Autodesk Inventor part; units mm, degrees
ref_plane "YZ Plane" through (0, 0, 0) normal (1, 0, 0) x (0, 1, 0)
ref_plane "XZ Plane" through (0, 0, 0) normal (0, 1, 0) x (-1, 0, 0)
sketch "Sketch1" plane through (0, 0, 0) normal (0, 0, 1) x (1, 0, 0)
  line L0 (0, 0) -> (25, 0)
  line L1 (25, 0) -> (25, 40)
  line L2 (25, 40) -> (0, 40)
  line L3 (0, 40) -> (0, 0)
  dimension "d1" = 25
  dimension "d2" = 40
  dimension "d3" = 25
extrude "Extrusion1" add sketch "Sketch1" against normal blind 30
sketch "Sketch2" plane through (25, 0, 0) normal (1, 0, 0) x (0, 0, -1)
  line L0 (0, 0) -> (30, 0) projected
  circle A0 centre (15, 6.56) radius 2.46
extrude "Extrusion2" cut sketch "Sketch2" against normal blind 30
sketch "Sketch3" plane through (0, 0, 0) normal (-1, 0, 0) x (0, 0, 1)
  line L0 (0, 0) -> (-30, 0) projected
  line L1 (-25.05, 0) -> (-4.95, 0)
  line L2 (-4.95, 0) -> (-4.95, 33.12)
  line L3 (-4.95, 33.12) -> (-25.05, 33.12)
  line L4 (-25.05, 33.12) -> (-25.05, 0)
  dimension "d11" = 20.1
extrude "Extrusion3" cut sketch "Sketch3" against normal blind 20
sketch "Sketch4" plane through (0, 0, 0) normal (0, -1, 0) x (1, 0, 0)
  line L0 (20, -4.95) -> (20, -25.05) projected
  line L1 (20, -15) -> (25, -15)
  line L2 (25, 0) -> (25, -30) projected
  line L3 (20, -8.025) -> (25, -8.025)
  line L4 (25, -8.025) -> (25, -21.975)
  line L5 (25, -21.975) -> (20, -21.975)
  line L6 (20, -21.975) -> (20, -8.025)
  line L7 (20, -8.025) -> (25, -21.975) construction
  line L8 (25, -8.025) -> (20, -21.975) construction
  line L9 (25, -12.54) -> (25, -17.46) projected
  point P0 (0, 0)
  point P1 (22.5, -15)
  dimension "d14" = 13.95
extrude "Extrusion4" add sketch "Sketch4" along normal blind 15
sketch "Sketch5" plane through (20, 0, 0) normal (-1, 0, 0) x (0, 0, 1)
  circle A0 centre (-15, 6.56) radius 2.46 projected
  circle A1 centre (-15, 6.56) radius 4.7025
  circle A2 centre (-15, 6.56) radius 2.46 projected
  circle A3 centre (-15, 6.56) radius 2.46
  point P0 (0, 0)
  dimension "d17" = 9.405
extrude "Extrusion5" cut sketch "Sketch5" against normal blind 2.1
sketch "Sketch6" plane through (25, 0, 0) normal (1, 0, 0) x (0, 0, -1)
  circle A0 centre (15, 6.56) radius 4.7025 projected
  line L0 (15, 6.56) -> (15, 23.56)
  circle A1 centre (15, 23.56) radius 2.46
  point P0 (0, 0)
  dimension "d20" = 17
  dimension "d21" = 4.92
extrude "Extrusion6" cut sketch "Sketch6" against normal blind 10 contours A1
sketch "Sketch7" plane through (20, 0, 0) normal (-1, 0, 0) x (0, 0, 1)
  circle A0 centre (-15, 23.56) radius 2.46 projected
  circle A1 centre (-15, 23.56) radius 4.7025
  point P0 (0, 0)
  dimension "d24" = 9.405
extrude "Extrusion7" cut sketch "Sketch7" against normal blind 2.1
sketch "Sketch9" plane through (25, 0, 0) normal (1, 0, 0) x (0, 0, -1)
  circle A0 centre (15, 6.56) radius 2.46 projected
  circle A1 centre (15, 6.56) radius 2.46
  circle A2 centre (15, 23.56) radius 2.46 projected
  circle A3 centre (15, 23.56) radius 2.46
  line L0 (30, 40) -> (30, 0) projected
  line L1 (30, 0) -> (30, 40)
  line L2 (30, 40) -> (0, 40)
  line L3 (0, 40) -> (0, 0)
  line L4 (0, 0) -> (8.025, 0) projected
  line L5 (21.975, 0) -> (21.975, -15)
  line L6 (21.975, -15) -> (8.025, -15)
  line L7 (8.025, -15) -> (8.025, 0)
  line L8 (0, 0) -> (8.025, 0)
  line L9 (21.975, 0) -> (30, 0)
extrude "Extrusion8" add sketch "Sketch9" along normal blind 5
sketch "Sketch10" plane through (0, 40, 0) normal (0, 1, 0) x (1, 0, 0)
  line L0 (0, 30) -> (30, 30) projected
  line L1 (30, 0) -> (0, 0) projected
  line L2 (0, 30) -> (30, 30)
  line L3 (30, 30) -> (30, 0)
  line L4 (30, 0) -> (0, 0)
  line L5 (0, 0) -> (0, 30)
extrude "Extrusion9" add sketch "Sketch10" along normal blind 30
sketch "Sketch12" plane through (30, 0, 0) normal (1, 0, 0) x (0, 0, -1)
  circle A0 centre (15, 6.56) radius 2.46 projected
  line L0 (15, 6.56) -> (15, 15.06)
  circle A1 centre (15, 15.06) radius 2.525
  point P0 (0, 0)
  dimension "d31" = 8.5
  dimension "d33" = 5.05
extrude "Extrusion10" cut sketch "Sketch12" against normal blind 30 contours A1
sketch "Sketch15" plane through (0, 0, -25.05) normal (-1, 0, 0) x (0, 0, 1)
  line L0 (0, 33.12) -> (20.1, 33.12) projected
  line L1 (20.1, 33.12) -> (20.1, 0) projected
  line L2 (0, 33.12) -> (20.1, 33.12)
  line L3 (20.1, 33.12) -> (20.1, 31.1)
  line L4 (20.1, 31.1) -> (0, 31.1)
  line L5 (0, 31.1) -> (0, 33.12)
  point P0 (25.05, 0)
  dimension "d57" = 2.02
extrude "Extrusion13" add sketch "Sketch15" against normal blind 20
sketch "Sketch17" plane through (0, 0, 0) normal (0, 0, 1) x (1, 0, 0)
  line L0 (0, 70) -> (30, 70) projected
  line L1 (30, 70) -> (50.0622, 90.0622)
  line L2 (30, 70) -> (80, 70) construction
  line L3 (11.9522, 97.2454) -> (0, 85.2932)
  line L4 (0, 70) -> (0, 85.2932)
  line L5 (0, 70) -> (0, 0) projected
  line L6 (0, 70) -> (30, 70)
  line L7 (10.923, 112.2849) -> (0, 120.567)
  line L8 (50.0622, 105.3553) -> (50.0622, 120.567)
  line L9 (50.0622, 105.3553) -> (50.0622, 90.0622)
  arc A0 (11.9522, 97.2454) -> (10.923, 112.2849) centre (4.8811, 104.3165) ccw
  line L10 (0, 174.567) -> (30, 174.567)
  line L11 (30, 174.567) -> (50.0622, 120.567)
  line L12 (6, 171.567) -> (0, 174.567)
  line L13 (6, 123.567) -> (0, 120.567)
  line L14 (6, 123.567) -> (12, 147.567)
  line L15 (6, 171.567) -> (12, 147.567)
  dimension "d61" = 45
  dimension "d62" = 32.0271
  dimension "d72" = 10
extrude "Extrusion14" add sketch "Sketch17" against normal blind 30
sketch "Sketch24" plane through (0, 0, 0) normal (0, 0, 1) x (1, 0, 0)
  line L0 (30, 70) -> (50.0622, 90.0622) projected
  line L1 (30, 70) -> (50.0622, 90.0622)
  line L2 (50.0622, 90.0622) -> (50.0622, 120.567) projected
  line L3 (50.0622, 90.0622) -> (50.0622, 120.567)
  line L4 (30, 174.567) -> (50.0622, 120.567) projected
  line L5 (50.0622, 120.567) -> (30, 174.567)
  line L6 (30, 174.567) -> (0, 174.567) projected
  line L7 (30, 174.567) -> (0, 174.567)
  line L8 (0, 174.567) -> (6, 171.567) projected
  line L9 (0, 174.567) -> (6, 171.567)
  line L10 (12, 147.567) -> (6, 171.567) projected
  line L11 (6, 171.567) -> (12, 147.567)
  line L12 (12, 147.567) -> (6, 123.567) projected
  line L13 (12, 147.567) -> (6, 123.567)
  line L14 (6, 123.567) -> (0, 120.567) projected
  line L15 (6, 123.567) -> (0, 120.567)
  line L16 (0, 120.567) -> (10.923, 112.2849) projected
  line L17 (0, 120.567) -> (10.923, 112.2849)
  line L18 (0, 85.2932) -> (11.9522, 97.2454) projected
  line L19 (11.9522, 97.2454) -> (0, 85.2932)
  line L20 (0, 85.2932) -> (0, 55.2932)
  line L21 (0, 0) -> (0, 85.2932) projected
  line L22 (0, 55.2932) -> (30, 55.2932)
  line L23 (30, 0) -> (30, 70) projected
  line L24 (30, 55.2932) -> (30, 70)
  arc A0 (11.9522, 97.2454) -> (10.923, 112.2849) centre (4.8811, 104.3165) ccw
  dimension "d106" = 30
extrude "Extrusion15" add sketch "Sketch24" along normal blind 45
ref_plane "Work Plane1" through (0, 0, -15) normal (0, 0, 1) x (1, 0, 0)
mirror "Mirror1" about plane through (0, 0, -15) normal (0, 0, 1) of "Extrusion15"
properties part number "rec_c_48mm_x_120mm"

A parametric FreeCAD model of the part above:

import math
import FreeCAD as App
import Part
import Sketcher
from FreeCAD import Vector
Q = App.Units.Quantity

doc = App.newDocument("Part")
body = doc.addObject("PartDesign::Body", "Body")

# Sketch on XY plane
sketch1 = body.newObject("Sketcher::SketchObject", "Sketch")
sketch1.AttachmentSupport = (doc.getObject("XY_Plane"), [""])
sketch1.MapMode = "FlatFace"
sketch1.addGeometry(Part.LineSegment(Vector(0, 40, 0), Vector(0, 0, 0)), False)
sketch1.addGeometry(Part.LineSegment(Vector(0, 0, 0), Vector(25, 0, 0)), False)
sketch1.addGeometry(Part.LineSegment(Vector(25, 0, 0), Vector(25, 40, 0)), False)
sketch1.addGeometry(Part.LineSegment(Vector(25, 40, 0), Vector(0, 40, 0)), False)
sketch1.addConstraint(Sketcher.Constraint("Coincident", 0, 2, 1, 1))
sketch1.addConstraint(Sketcher.Constraint("Coincident", 1, 2, 2, 1))
sketch1.addConstraint(Sketcher.Constraint("Coincident", 2, 2, 3, 1))
sketch1.addConstraint(Sketcher.Constraint("Coincident", 3, 2, 0, 1))
sketch1.addConstraint(Sketcher.Constraint("Vertical", 0))
sketch1.addConstraint(Sketcher.Constraint("Horizontal", 1))
sketch1.addConstraint(Sketcher.Constraint("Vertical", 2))
sketch1.addConstraint(Sketcher.Constraint("Horizontal", 3))
sketch1.addConstraint(Sketcher.Constraint("Coincident", 0, 2, -1, 1))
sketch1.addConstraint(Sketcher.Constraint("DistanceX", 1, 1, 1, 2, Q("25 mm")))
sketch1.addConstraint(Sketcher.Constraint("DistanceY", 0, 2, 0, 1, Q("40 mm")))
pad1 = body.newObject("PartDesign::Pad", "Pad")
pad1.Profile = sketch1
pad1.Length = 30
pad1.Reversed = True

# Sketch on YZ plane
sketch2 = body.newObject("Sketcher::SketchObject", "Sketch001")
sketch2.AttachmentSupport = (doc.getObject("YZ_Plane"), [""])
sketch2.MapMode = "FlatFace"
sketch2.AttachmentOffset = App.Placement(Vector(0, 0, 25), App.Rotation())
sketch2.addGeometry(Part.Circle(Vector(6.6, -15, 0), Vector(0, 0, 1), 2.5), False)
sketch2.addConstraint(Sketcher.Constraint("Diameter", 0, Q("4.92 mm")))
sketch2.addConstraint(Sketcher.Constraint("DistanceY", 0, 3, -1, 1, Q("15 mm")))
sketch2.addConstraint(Sketcher.Constraint("DistanceX", -1, 1, 0, 3, Q("6.56 mm")))
pocket1 = body.newObject("PartDesign::Pocket", "Pocket")
pocket1.Profile = sketch2
pocket1.Length = 30

# Sketch on YZ plane
sketch3 = body.newObject("Sketcher::SketchObject", "Sketch002")
sketch3.AttachmentSupport = (doc.getObject("YZ_Plane"), [""])
sketch3.MapMode = "FlatFace"
sketch3.addGeometry(Part.LineSegment(Vector(0, -25, 0), Vector(0, -5, 0)), False)
sketch3.addGeometry(Part.LineSegment(Vector(0, -5, 0), Vector(33, -5, 0)), False)
sketch3.addGeometry(Part.LineSegment(Vector(33, -5, 0), Vector(33, -25, 0)), False)
sketch3.addGeometry(Part.LineSegment(Vector(33, -25, 0), Vector(0, -25, 0)), False)
sketch3.addConstraint(Sketcher.Constraint("Coincident", 0, 2, 1, 1))
sketch3.addConstraint(Sketcher.Constraint("Coincident", 1, 2, 2, 1))
sketch3.addConstraint(Sketcher.Constraint("Coincident", 2, 2, 3, 1))
sketch3.addConstraint(Sketcher.Constraint("Coincident", 3, 2, 0, 1))
sketch3.addConstraint(Sketcher.Constraint("Vertical", 0))
sketch3.addConstraint(Sketcher.Constraint("Horizontal", 1))
sketch3.addConstraint(Sketcher.Constraint("Vertical", 2))
sketch3.addConstraint(Sketcher.Constraint("Horizontal", 3))
sketch3.addConstraint(Sketcher.Constraint("PointOnObject", 0, 2, -2))
sketch3.addConstraint(Sketcher.Constraint("DistanceY", 0, 1, 0, 2, Q("20.1 mm")))
sketch3.addConstraint(Sketcher.Constraint("DistanceX", 1, 1, 1, 2, Q("33.12 mm")))
sketch3.addConstraint(Sketcher.Constraint("DistanceY", 0, 2, -1, 1, Q("4.95 mm")))
pocket2 = body.newObject("PartDesign::Pocket", "Pocket001")
pocket2.Profile = sketch3
pocket2.Length = 20
pocket2.Reversed = True

# Sketch on XZ plane
sketch4 = body.newObject("Sketcher::SketchObject", "Sketch003")
sketch4.AttachmentSupport = (doc.getObject("XZ_Plane"), [""])
sketch4.MapMode = "FlatFace"
sketch4.addGeometry(Part.LineSegment(Vector(25, -8, 0), Vector(20, -8, 0)), False)
sketch4.addGeometry(Part.LineSegment(Vector(20, -8, 0), Vector(20, -22, 0)), False)
sketch4.addGeometry(Part.LineSegment(Vector(20, -22, 0), Vector(25, -22, 0)), False)
sketch4.addGeometry(Part.LineSegment(Vector(25, -22, 0), Vector(25, -8, 0)), False)
sketch4.addConstraint(Sketcher.Constraint("Coincident", 0, 2, 1, 1))
sketch4.addConstraint(Sketcher.Constraint("Coincident", 1, 2, 2, 1))
sketch4.addConstraint(Sketcher.Constraint("Coincident", 2, 2, 3, 1))
sketch4.addConstraint(Sketcher.Constraint("Coincident", 3, 2, 0, 1))
sketch4.addConstraint(Sketcher.Constraint("Horizontal", 0))
sketch4.addConstraint(Sketcher.Constraint("Vertical", 1))
sketch4.addConstraint(Sketcher.Constraint("Horizontal", 2))
sketch4.addConstraint(Sketcher.Constraint("Vertical", 3))
sketch4.addConstraint(Sketcher.Constraint("DistanceY", 1, 2, 1, 1, Q("13.95 mm")))
sketch4.addConstraint(Sketcher.Constraint("DistanceX", 0, 2, 0, 1, Q("5 mm")))
sketch4.addConstraint(Sketcher.Constraint("DistanceX", -1, 1, 0, 2, Q("20 mm")))
sketch4.addConstraint(Sketcher.Constraint("DistanceY", 0, 2, -1, 1, Q("8.025 mm")))
pad2 = body.newObject("PartDesign::Pad", "Pad001")
pad2.Profile = sketch4
pad2.Length = 15

# Sketch on YZ plane
sketch5 = body.newObject("Sketcher::SketchObject", "Sketch004")
sketch5.AttachmentSupport = (doc.getObject("YZ_Plane"), [""])
sketch5.MapMode = "FlatFace"
sketch5.AttachmentOffset = App.Placement(Vector(0, 0, 20), App.Rotation())
sketch5.addGeometry(Part.Circle(Vector(6.6, -15, 0), Vector(0, 0, 1), 4.7), False)
sketch5.addGeometry(Part.Circle(Vector(6.6, -15, 0), Vector(0, 0, 1), 2.5), False)
sketch5.addConstraint(Sketcher.Constraint("Coincident", 1, 3, 0, 3))
sketch5.addConstraint(Sketcher.Constraint("Diameter", 0, Q("9.405 mm")))
sketch5.addConstraint(Sketcher.Constraint("Diameter", 1, Q("4.92 mm")))
sketch5.addConstraint(Sketcher.Constraint("DistanceY", 0, 3, -1, 1, Q("15 mm")))
sketch5.addConstraint(Sketcher.Constraint("DistanceX", -1, 1, 0, 3, Q("6.56 mm")))
pocket3 = body.newObject("PartDesign::Pocket", "Pocket002")
pocket3.Profile = sketch5
pocket3.Length = 2.1
pocket3.Reversed = True

# Sketch on YZ plane
sketch6 = body.newObject("Sketcher::SketchObject", "Sketch005")
sketch6.AttachmentSupport = (doc.getObject("YZ_Plane"), [""])
sketch6.MapMode = "FlatFace"
sketch6.AttachmentOffset = App.Placement(Vector(0, 0, 25), App.Rotation())
sketch6.addGeometry(Part.Circle(Vector(23.6, -15, 0), Vector(0, 0, 1), 2.5), False)
sketch6.addConstraint(Sketcher.Constraint("Diameter", 0, Q("4.92 mm")))
sketch6.addConstraint(Sketcher.Constraint("DistanceY", 0, 3, -1, 1, Q("15 mm")))
sketch6.addConstraint(Sketcher.Constraint("DistanceX", -1, 1, 0, 3, Q("23.56 mm")))
pocket4 = body.newObject("PartDesign::Pocket", "Pocket003")
pocket4.Profile = sketch6
pocket4.Length = 10

# Sketch on YZ plane
sketch7 = body.newObject("Sketcher::SketchObject", "Sketch006")
sketch7.AttachmentSupport = (doc.getObject("YZ_Plane"), [""])
sketch7.MapMode = "FlatFace"
sketch7.AttachmentOffset = App.Placement(Vector(0, 0, 20), App.Rotation())
sketch7.addGeometry(Part.Circle(Vector(23.6, -15, 0), Vector(0, 0, 1), 4.7), False)
sketch7.addGeometry(Part.Circle(Vector(23.6, -15, 0), Vector(0, 0, 1), 2.5), False)
sketch7.addConstraint(Sketcher.Constraint("Coincident", 1, 3, 0, 3))
sketch7.addConstraint(Sketcher.Constraint("Diameter", 0, Q("9.405 mm")))
sketch7.addConstraint(Sketcher.Constraint("Diameter", 1, Q("4.92 mm")))
sketch7.addConstraint(Sketcher.Constraint("DistanceY", 0, 3, -1, 1, Q("15 mm")))
sketch7.addConstraint(Sketcher.Constraint("DistanceX", -1, 1, 0, 3, Q("23.56 mm")))
pocket5 = body.newObject("PartDesign::Pocket", "Pocket004")
pocket5.Profile = sketch7
pocket5.Length = 2.1
pocket5.Reversed = True

# Sketch on YZ plane
sketch8 = body.newObject("Sketcher::SketchObject", "Sketch007")
sketch8.AttachmentSupport = (doc.getObject("YZ_Plane"), [""])
sketch8.MapMode = "FlatFace"
sketch8.AttachmentOffset = App.Placement(Vector(0, 0, 25), App.Rotation())
sketch8.addGeometry(Part.LineSegment(Vector(0, -30, 0), Vector(40, -30, 0)), False)
sketch8.addGeometry(Part.LineSegment(Vector(40, -30, 0), Vector(40, 0, 0)), False)
sketch8.addGeometry(Part.LineSegment(Vector(40, 0, 0), Vector(0, 0, 0)), False)
sketch8.addGeometry(Part.LineSegment(Vector(0, 0, 0), Vector(0, -8, 0)), False)
sketch8.addGeometry(Part.LineSegment(Vector(0, -8, 0), Vector(-15, -8, 0)), False)
sketch8.addGeometry(Part.LineSegment(Vector(-15, -8, 0), Vector(-15, -22, 0)), False)
sketch8.addGeometry(Part.LineSegment(Vector(-15, -22, 0), Vector(0, -22, 0)), False)
sketch8.addGeometry(Part.LineSegment(Vector(0, -22, 0), Vector(0, -30, 0)), False)
sketch8.addGeometry(Part.Circle(Vector(6.6, -15, 0), Vector(0, 0, 1), 2.5), False)
sketch8.addGeometry(Part.Circle(Vector(23.6, -15, 0), Vector(0, 0, 1), 2.5), False)
sketch8.addConstraint(Sketcher.Constraint("Coincident", 0, 2, 1, 1))
sketch8.addConstraint(Sketcher.Constraint("Coincident", 1, 2, 2, 1))
sketch8.addConstraint(Sketcher.Constraint("Coincident", 2, 2, 3, 1))
sketch8.addConstraint(Sketcher.Constraint("Coincident", 3, 2, 4, 1))
sketch8.addConstraint(Sketcher.Constraint("Coincident", 4, 2, 5, 1))
sketch8.addConstraint(Sketcher.Constraint("Coincident", 5, 2, 6, 1))
sketch8.addConstraint(Sketcher.Constraint("Coincident", 6, 2, 7, 1))
sketch8.addConstraint(Sketcher.Constraint("Coincident", 7, 2, 0, 1))
sketch8.addConstraint(Sketcher.Constraint("Horizontal", 0))
sketch8.addConstraint(Sketcher.Constraint("Vertical", 1))
sketch8.addConstraint(Sketcher.Constraint("Horizontal", 2))
sketch8.addConstraint(Sketcher.Constraint("Vertical", 3))
sketch8.addConstraint(Sketcher.Constraint("Horizontal", 4))
sketch8.addConstraint(Sketcher.Constraint("Vertical", 5))
sketch8.addConstraint(Sketcher.Constraint("Horizontal", 6))
sketch8.addConstraint(Sketcher.Constraint("Vertical", 7))
sketch8.addConstraint(Sketcher.Constraint("Coincident", 2, 2, -1, 1))
sketch8.addConstraint(Sketcher.Constraint("Equal", 8, 9))
sketch8.addConstraint(Sketcher.Constraint("PointOnObject", 6, 2, -2))
sketch8.addConstraint(Sketcher.Constraint("Horizontal", 8, 3, 9, 3))
sketch8.addConstraint(Sketcher.Constraint("Equal", 3, 7))
sketch8.addConstraint(Sketcher.Constraint("Diameter", 8, Q("4.92 mm")))
sketch8.addConstraint(Sketcher.Constraint("DistanceX", 0, 1, 0, 2, Q("40 mm")))
sketch8.addConstraint(Sketcher.Constraint("DistanceX", 4, 2, 4, 1, Q("15 mm")))
sketch8.addConstraint(Sketcher.Constraint("DistanceY", 1, 1, 1, 2, Q("30 mm")))
sketch8.addConstraint(Sketcher.Constraint("DistanceY", 8, 3, -1, 1, Q("15 mm")))
sketch8.addConstraint(Sketcher.Constraint("DistanceX", 8, 3, 9, 3, Q("17 mm")))
sketch8.addConstraint(Sketcher.Constraint("DistanceY", 5, 2, 5, 1, Q("13.95 mm")))
sketch8.addConstraint(Sketcher.Constraint("DistanceX", -1, 1, 8, 3, Q("6.56 mm")))
pad3 = body.newObject("PartDesign::Pad", "Pad002")
pad3.Profile = sketch8
pad3.Length = 5

# Sketch on XZ plane
sketch9 = body.newObject("Sketcher::SketchObject", "Sketch008")
sketch9.AttachmentSupport = (doc.getObject("XZ_Plane"), [""])
sketch9.MapMode = "FlatFace"
sketch9.AttachmentOffset = App.Placement(Vector(0, 0, -40), App.Rotation())
sketch9.addGeometry(Part.LineSegment(Vector(30, -30, 0), Vector(0, -30, 0)), False)
sketch9.addGeometry(Part.LineSegment(Vector(0, -30, 0), Vector(0, 0, 0)), False)
sketch9.addGeometry(Part.LineSegment(Vector(0, 0, 0), Vector(30, 0, 0)), False)
sketch9.addGeometry(Part.LineSegment(Vector(30, 0, 0), Vector(30, -30, 0)), False)
sketch9.addConstraint(Sketcher.Constraint("Coincident", 0, 2, 1, 1))
sketch9.addConstraint(Sketcher.Constraint("Coincident", 1, 2, 2, 1))
sketch9.addConstraint(Sketcher.Constraint("Coincident", 2, 2, 3, 1))
sketch9.addConstraint(Sketcher.Constraint("Coincident", 3, 2, 0, 1))
sketch9.addConstraint(Sketcher.Constraint("Horizontal", 0))
sketch9.addConstraint(Sketcher.Constraint("Vertical", 1))
sketch9.addConstraint(Sketcher.Constraint("Horizontal", 2))
sketch9.addConstraint(Sketcher.Constraint("Vertical", 3))
sketch9.addConstraint(Sketcher.Constraint("Coincident", 1, 2, -1, 1))
sketch9.addConstraint(Sketcher.Constraint("Equal", 2, 1))
sketch9.addConstraint(Sketcher.Constraint("DistanceX", 0, 2, 0, 1, Q("30 mm")))
pad4 = body.newObject("PartDesign::Pad", "Pad003")
pad4.Profile = sketch9
pad4.Length = 30
pad4.Reversed = True

# Sketch on YZ plane
sketch10 = body.newObject("Sketcher::SketchObject", "Sketch009")
sketch10.AttachmentSupport = (doc.getObject("YZ_Plane"), [""])
sketch10.MapMode = "FlatFace"
sketch10.AttachmentOffset = App.Placement(Vector(0, 0, 30), App.Rotation())
sketch10.addGeometry(Part.Circle(Vector(15.1, -15, 0), Vector(0, 0, 1), 2.5), False)
sketch10.addConstraint(Sketcher.Constraint("Diameter", 0, Q("5.05 mm")))
sketch10.addConstraint(Sketcher.Constraint("DistanceY", 0, 3, -1, 1, Q("15 mm")))
sketch10.addConstraint(Sketcher.Constraint("DistanceX", -1, 1, 0, 3, Q("15.06 mm")))
pocket6 = body.newObject("PartDesign::Pocket", "Pocket005")
pocket6.Profile = sketch10
pocket6.Length = 30

# Sketch on YZ plane
sketch11 = body.newObject("Sketcher::SketchObject", "Sketch010")
sketch11.AttachmentSupport = (doc.getObject("YZ_Plane"), [""])
sketch11.MapMode = "FlatFace"
sketch11.addGeometry(Part.LineSegment(Vector(33.1, -5, 0), Vector(33.1, -25.1, 0)), False)
sketch11.addGeometry(Part.LineSegment(Vector(33.1, -25.1, 0), Vector(31.1, -25.1, 0)), False)
sketch11.addGeometry(Part.LineSegment(Vector(31.1, -25.1, 0), Vector(31.1, -5, 0)), False)
sketch11.addGeometry(Part.LineSegment(Vector(31.1, -5, 0), Vector(33.1, -5, 0)), False)
sketch11.addConstraint(Sketcher.Constraint("Coincident", 0, 2, 1, 1))
sketch11.addConstraint(Sketcher.Constraint("Coincident", 1, 2, 2, 1))
sketch11.addConstraint(Sketcher.Constraint("Coincident", 2, 2, 3, 1))
sketch11.addConstraint(Sketcher.Constraint("Coincident", 3, 2, 0, 1))
sketch11.addConstraint(Sketcher.Constraint("Vertical", 0))
sketch11.addConstraint(Sketcher.Constraint("Horizontal", 1))
sketch11.addConstraint(Sketcher.Constraint("Vertical", 2))
sketch11.addConstraint(Sketcher.Constraint("Horizontal", 3))
sketch11.addConstraint(Sketcher.Constraint("DistanceX", 1, 2, 1, 1, Q("2.02 mm")))
sketch11.addConstraint(Sketcher.Constraint("DistanceY", 0, 2, 0, 1, Q("20.1 mm")))
sketch11.addConstraint(Sketcher.Constraint("DistanceX", -1, 1, 1, 2, Q("31.1 mm")))
sketch11.addConstraint(Sketcher.Constraint("DistanceY", 0, 2, -1, 1, Q("25.05 mm")))
pad5 = body.newObject("PartDesign::Pad", "Pad004")
pad5.Profile = sketch11
pad5.Length = 20

# Sketch on XY plane
sketch12 = body.newObject("Sketcher::SketchObject", "Sketch011")
sketch12.AttachmentSupport = (doc.getObject("XY_Plane"), [""])
sketch12.MapMode = "FlatFace"
sketch12.addGeometry(Part.LineSegment(Vector(0, 85, 0), Vector(0, 70, 0)), False)
sketch12.addGeometry(Part.LineSegment(Vector(0, 70, 0), Vector(30, 70, 0)), False)
sketch12.addGeometry(Part.LineSegment(Vector(30, 70, 0), Vector(50, 90, 0)), False)
sketch12.addGeometry(Part.LineSegment(Vector(50, 90, 0), Vector(50, 121, 0)), False)
sketch12.addGeometry(Part.LineSegment(Vector(50, 121, 0), Vector(30, 175, 0)), False)
sketch12.addGeometry(Part.LineSegment(Vector(30, 175, 0), Vector(0, 175, 0)), False)
sketch12.addGeometry(Part.LineSegment(Vector(0, 175, 0), Vector(6, 172, 0)), False)
sketch12.addGeometry(Part.LineSegment(Vector(6, 172, 0), Vector(12, 148, 0)), False)
sketch12.addGeometry(Part.LineSegment(Vector(12, 148, 0), Vector(6, 124, 0)), False)
sketch12.addGeometry(Part.LineSegment(Vector(6, 124, 0), Vector(0, 121, 0)), False)
sketch12.addGeometry(Part.LineSegment(Vector(0, 121, 0), Vector(11, 112, 0)), False)
sketch12.addGeometry(Part.ArcOfCircle(Part.Circle(Vector(5, 104, 0), Vector(0, 0, 1), 10), math.radians(-45), math.radians(53)), False)
sketch12.addGeometry(Part.LineSegment(Vector(12, 97, 0), Vector(0, 85, 0)), False)
sketch12.addConstraint(Sketcher.Constraint("Coincident", 0, 2, 1, 1))
sketch12.addConstraint(Sketcher.Constraint("Coincident", 1, 2, 2, 1))
sketch12.addConstraint(Sketcher.Constraint("Coincident", 2, 2, 3, 1))
sketch12.addConstraint(Sketcher.Constraint("Coincident", 3, 2, 4, 1))
sketch12.addConstraint(Sketcher.Constraint("Coincident", 4, 2, 5, 1))
sketch12.addConstraint(Sketcher.Constraint("Coincident", 5, 2, 6, 1))
sketch12.addConstraint(Sketcher.Constraint("Coincident", 6, 2, 7, 1))
sketch12.addConstraint(Sketcher.Constraint("Coincident", 7, 2, 8, 1))
sketch12.addConstraint(Sketcher.Constraint("Coincident", 8, 2, 9, 1))
sketch12.addConstraint(Sketcher.Constraint("Coincident", 9, 2, 10, 1))
sketch12.addConstraint(Sketcher.Constraint("Tangent", 10, 2, 11, 2))
sketch12.addConstraint(Sketcher.Constraint("Tangent", 11, 1, 12, 1))
sketch12.addConstraint(Sketcher.Constraint("Coincident", 12, 2, 0, 1))
sketch12.addConstraint(Sketcher.Constraint("Vertical", 0))
sketch12.addConstraint(Sketcher.Constraint("Horizontal", 1))
sketch12.addConstraint(Sketcher.Constraint("Vertical", 3))
sketch12.addConstraint(Sketcher.Constraint("Horizontal", 5))
sketch12.addConstraint(Sketcher.Constraint("PointOnObject", 0, 2, -2))
sketch12.addConstraint(Sketcher.Constraint("PointOnObject", 5, 2, -2))
sketch12.addConstraint(Sketcher.Constraint("PointOnObject", 9, 2, -2))
sketch12.addConstraint(Sketcher.Constraint("Parallel", 2, 12))
sketch12.addConstraint(Sketcher.Constraint("Horizontal", 3, 2, 9, 2))
sketch12.addConstraint(Sketcher.Constraint("Vertical", 1, 2, 4, 2))
sketch12.addConstraint(Sketcher.Constraint("Vertical", 6, 2, 8, 2))
sketch12.addConstraint(Sketcher.Constraint("Equal", 7, 8))
sketch12.addConstraint(Sketcher.Constraint("Equal", 6, 9))
sketch12.addConstraint(Sketcher.Constraint("Radius", 11, Q("10 mm")))
sketch12.addConstraint(Sketcher.Constraint("Angle", 2, Q("45 deg")))
sketch12.addConstraint(Sketcher.Constraint("DistanceX", 1, 1, 1, 2, Q("30 mm")))
sketch12.addConstraint(Sketcher.Constraint("DistanceY", -1, 1, 0, 2, Q("70 mm")))
sketch12.addConstraint(Sketcher.Constraint("DistanceX", -1, 1, 6, 2, Q("6 mm")))
sketch12.addConstraint(Sketcher.Constraint("DistanceX", -1, 1, 7, 2, Q("12 mm")))
sketch12.addConstraint(Sketcher.Constraint("DistanceY", 3, 2, 4, 2, Q("54 mm")))
sketch12.addConstraint(Sketcher.Constraint("DistanceY", 6, 2, 5, 2, Q("3 mm")))
sketch12.addConstraint(Sketcher.Constraint("Angle", 4, Q("110.3812 deg")))
sketch12.addConstraint(Sketcher.Constraint("Angle", 10, Q("-37.1703 deg")))
sketch12.addConstraint(Sketcher.Constraint("Distance", 12, Q("16.903 mm")))
sketch12.addConstraint(Sketcher.Constraint("DistanceY", 0, 2, 0, 1, Q("15.2932 mm")))
pad6 = body.newObject("PartDesign::Pad", "Pad005")
pad6.Profile = sketch12
pad6.Length = 30
pad6.Reversed = True

# Sketch on XY plane
sketch13 = body.newObject("Sketcher::SketchObject", "Sketch012")
sketch13.AttachmentSupport = (doc.getObject("XY_Plane"), [""])
sketch13.MapMode = "FlatFace"
sketch13.addGeometry(Part.LineSegment(Vector(30, 55, 0), Vector(30, 70, 0)), False)
sketch13.addGeometry(Part.LineSegment(Vector(30, 70, 0), Vector(50, 90, 0)), False)
sketch13.addGeometry(Part.LineSegment(Vector(50, 90, 0), Vector(50, 121, 0)), False)
sketch13.addGeometry(Part.LineSegment(Vector(50, 121, 0), Vector(30, 175, 0)), False)
sketch13.addGeometry(Part.LineSegment(Vector(30, 175, 0), Vector(0, 175, 0)), False)
sketch13.addGeometry(Part.LineSegment(Vector(0, 175, 0), Vector(6, 172, 0)), False)
sketch13.addGeometry(Part.LineSegment(Vector(6, 172, 0), Vector(12, 148, 0)), False)
sketch13.addGeometry(Part.LineSegment(Vector(12, 148, 0), Vector(6, 124, 0)), False)
sketch13.addGeometry(Part.LineSegment(Vector(6, 124, 0), Vector(0, 121, 0)), False)
sketch13.addGeometry(Part.LineSegment(Vector(0, 121, 0), Vector(11, 112, 0)), False)
sketch13.addGeometry(Part.ArcOfCircle(Part.Circle(Vector(5, 104, 0), Vector(0, 0, 1), 10), math.radians(-45), math.radians(53)), False)
sketch13.addGeometry(Part.LineSegment(Vector(12, 97, 0), Vector(0, 85, 0)), False)
sketch13.addGeometry(Part.LineSegment(Vector(0, 85, 0), Vector(0, 55, 0)), False)
sketch13.addGeometry(Part.LineSegment(Vector(0, 55, 0), Vector(30, 55, 0)), False)
sketch13.addConstraint(Sketcher.Constraint("Coincident", 0, 2, 1, 1))
sketch13.addConstraint(Sketcher.Constraint("Coincident", 1, 2, 2, 1))
sketch13.addConstraint(Sketcher.Constraint("Coincident", 2, 2, 3, 1))
sketch13.addConstraint(Sketcher.Constraint("Coincident", 3, 2, 4, 1))
sketch13.addConstraint(Sketcher.Constraint("Coincident", 4, 2, 5, 1))
sketch13.addConstraint(Sketcher.Constraint("Coincident", 5, 2, 6, 1))
sketch13.addConstraint(Sketcher.Constraint("Coincident", 6, 2, 7, 1))
sketch13.addConstraint(Sketcher.Constraint("Coincident", 7, 2, 8, 1))
sketch13.addConstraint(Sketcher.Constraint("Coincident", 8, 2, 9, 1))
sketch13.addConstraint(Sketcher.Constraint("Tangent", 9, 2, 10, 2))
sketch13.addConstraint(Sketcher.Constraint("Tangent", 10, 1, 11, 1))
sketch13.addConstraint(Sketcher.Constraint("Coincident", 11, 2, 12, 1))
sketch13.addConstraint(Sketcher.Constraint("Coincident", 12, 2, 13, 1))
sketch13.addConstraint(Sketcher.Constraint("Coincident", 13, 2, 0, 1))
sketch13.addConstraint(Sketcher.Constraint("Vertical", 0))
sketch13.addConstraint(Sketcher.Constraint("Vertical", 2))
sketch13.addConstraint(Sketcher.Constraint("Horizontal", 4))
sketch13.addConstraint(Sketcher.Constraint("Vertical", 12))
sketch13.addConstraint(Sketcher.Constraint("Horizontal", 13))
sketch13.addConstraint(Sketcher.Constraint("PointOnObject", 4, 2, -2))
sketch13.addConstraint(Sketcher.Constraint("PointOnObject", 8, 2, -2))
sketch13.addConstraint(Sketcher.Constraint("PointOnObject", 11, 2, -2))
sketch13.addConstraint(Sketcher.Constraint("Parallel", 1, 11))
sketch13.addConstraint(Sketcher.Constraint("Horizontal", 2, 2, 8, 2))
sketch13.addConstraint(Sketcher.Constraint("Vertical", 0, 2, 3, 2))
sketch13.addConstraint(Sketcher.Constraint("Vertical", 5, 2, 7, 2))
sketch13.addConstraint(Sketcher.Constraint("Equal", 13, 12))
sketch13.addConstraint(Sketcher.Constraint("Equal", 6, 7))
sketch13.addConstraint(Sketcher.Constraint("Equal", 5, 8))
sketch13.addConstraint(Sketcher.Constraint("DistanceX", 4, 2, 4, 1, Q("30 mm")))
sketch13.addConstraint(Sketcher.Constraint("Radius", 10, Q("10 mm")))
sketch13.addConstraint(Sketcher.Constraint("Angle", 1, Q("45 deg")))
sketch13.addConstraint(Sketcher.Constraint("DistanceY", -1, 1, 0, 2, Q("70 mm")))
sketch13.addConstraint(Sketcher.Constraint("DistanceX", -1, 1, 5, 2, Q("6 mm")))
sketch13.addConstraint(Sketcher.Constraint("DistanceX", -1, 1, 6, 2, Q("12 mm")))
sketch13.addConstraint(Sketcher.Constraint("DistanceY", 2, 2, 3, 2, Q("54 mm")))
sketch13.addConstraint(Sketcher.Constraint("DistanceY", 5, 2, 4, 2, Q("3 mm")))
sketch13.addConstraint(Sketcher.Constraint("Angle", 3, Q("110.3812 deg")))
sketch13.addConstraint(Sketcher.Constraint("Angle", 9, Q("-37.1703 deg")))
sketch13.addConstraint(Sketcher.Constraint("Distance", 11, Q("16.903 mm")))
sketch13.addConstraint(Sketcher.Constraint("DistanceY", 0, 1, 0, 2, Q("14.7068 mm")))
pad7 = body.newObject("PartDesign::Pad", "Pad006")
pad7.Profile = sketch13
pad7.Length = 45
doc.recompute()

datumplane = body.newObject("PartDesign::Plane", "DatumPlane")
datumplane.AttachmentSupport = (doc.getObject("XY_Plane"), [""])
datumplane.MapMode = "FlatFace"
datumplane.AttachmentOffset = App.Placement(Vector(0, 0, -15), App.Rotation())
mirrored = body.newObject("PartDesign::Mirrored", "Mirrored")
mirrored.Originals = [pad7]
mirrored.MirrorPlane = (datumplane, [""])
body.Tip = mirrored

doc.recompute()
